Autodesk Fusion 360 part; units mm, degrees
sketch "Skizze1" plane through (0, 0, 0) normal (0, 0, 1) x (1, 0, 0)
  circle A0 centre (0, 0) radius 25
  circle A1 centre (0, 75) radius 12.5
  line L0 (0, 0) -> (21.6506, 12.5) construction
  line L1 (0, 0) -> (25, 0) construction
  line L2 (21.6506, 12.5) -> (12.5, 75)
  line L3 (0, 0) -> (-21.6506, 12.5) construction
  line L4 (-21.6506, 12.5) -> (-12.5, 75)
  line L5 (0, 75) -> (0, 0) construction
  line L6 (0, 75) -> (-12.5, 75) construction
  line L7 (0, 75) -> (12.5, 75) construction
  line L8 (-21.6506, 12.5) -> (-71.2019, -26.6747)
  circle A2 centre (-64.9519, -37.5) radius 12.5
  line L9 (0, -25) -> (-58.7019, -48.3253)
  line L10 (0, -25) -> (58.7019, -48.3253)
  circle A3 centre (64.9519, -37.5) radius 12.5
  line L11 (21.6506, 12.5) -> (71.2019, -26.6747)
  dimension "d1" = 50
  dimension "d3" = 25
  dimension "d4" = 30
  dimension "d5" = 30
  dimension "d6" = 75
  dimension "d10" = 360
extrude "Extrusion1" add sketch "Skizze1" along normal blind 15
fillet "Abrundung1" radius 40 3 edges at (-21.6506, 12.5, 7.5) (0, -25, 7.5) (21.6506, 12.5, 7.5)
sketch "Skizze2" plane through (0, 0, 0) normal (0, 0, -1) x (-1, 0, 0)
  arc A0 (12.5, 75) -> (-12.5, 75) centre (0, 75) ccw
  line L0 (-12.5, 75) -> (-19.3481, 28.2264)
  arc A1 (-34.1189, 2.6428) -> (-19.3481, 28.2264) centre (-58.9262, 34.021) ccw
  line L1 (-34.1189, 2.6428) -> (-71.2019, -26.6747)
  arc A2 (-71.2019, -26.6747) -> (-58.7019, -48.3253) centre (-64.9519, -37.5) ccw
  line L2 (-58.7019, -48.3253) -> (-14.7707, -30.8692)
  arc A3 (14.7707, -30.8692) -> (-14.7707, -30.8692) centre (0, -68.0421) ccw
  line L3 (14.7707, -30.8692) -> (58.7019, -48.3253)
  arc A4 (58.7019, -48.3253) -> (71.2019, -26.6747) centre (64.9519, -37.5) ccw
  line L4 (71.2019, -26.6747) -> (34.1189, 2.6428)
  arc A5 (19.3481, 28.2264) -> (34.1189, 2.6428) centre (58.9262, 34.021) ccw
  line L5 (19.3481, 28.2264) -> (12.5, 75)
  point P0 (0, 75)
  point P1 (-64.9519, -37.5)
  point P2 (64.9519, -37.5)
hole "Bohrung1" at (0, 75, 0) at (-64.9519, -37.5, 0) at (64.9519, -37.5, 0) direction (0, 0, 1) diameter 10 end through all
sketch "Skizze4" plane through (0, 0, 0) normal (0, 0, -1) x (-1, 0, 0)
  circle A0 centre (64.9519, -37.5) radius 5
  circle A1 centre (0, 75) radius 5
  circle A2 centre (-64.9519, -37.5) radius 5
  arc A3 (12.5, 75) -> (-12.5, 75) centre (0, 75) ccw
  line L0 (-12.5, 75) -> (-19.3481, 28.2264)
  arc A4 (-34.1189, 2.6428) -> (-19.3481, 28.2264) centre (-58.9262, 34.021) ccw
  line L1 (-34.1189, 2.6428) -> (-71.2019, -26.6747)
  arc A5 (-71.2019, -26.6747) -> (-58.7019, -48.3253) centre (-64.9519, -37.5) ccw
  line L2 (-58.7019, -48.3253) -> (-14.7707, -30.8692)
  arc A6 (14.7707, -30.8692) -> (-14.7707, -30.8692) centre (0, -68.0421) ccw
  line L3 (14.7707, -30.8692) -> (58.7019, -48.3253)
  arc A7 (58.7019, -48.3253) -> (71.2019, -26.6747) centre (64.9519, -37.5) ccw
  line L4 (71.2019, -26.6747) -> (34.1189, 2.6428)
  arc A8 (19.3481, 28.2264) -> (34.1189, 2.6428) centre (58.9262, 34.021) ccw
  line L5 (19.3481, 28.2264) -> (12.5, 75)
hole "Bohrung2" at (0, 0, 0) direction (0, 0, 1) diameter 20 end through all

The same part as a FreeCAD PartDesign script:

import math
import FreeCAD as App
import Part
import Sketcher
Q = App.Units.Quantity


def edges_at(feature, points):
    """Names of the edges that pass closest to the given points."""
    edges = feature.Shape.Edges
    near = lambda p: min(range(len(edges)), key=lambda i: edges[i].distToShape(Part.Vertex(*p))[0])
    return sorted({f"Edge{near(p) + 1}" for p in points})

doc = App.newDocument("Part")
body = doc.addObject("PartDesign::Body", "Body")

# Sketch on XY plane
sketch1 = doc.addObject("Sketcher::SketchObject", "Sketch")
body.addObject(sketch1)
sketch1.AttachmentSupport = (doc.XY_Plane, [""])
sketch1.MapMode = "FlatFace"
sketch1.addGeometry([
    Part.LineSegment(App.Vector(0, -25, 0), App.Vector(59, -48, 0)),  # 0
    Part.ArcOfCircle(Part.Circle(App.Vector(65, -38, 0), App.Vector(0, 0, 1), 12), math.radians(-120), math.radians(60)),  # 1
    Part.LineSegment(App.Vector(71, -27, 0), App.Vector(22, 12, 0)),  # 2
    Part.LineSegment(App.Vector(22, 12, 0), App.Vector(12, 75, 0)),  # 3
    Part.ArcOfCircle(Part.Circle(App.Vector(0, 75, 0), App.Vector(0, 0, 1), 12), math.radians(0), math.radians(180)),  # 4
    Part.LineSegment(App.Vector(-12, 75, 0), App.Vector(-22, 12, 0)),  # 5
    Part.LineSegment(App.Vector(-22, 12, 0), App.Vector(-71, -27, 0)),  # 6
    Part.ArcOfCircle(Part.Circle(App.Vector(-65, -38, 0), App.Vector(0, 0, 1), 12), math.radians(120), math.radians(300)),  # 7
    Part.LineSegment(App.Vector(-59, -48, 0), App.Vector(0, -25, 0)),  # 8
], False)
sketch1.addConstraint([
    Sketcher.Constraint("Coincident", 0, 2, 1, 1),
    Sketcher.Constraint("Coincident", 1, 2, 2, 1),
    Sketcher.Constraint("Coincident", 2, 2, 3, 1),
    Sketcher.Constraint("Coincident", 3, 2, 4, 1),
    Sketcher.Constraint("Coincident", 4, 2, 5, 1),
    Sketcher.Constraint("Coincident", 5, 2, 6, 1),
    Sketcher.Constraint("Coincident", 6, 2, 7, 1),
    Sketcher.Constraint("Coincident", 7, 2, 8, 1),
    Sketcher.Constraint("Coincident", 8, 2, 0, 1),
    Sketcher.Constraint("Equal", 1, 4),
    Sketcher.Constraint("Equal", 4, 7),
    Sketcher.Constraint("Symmetric", 1, 3, 7, 3, -2),
    Sketcher.Constraint("Symmetric", 3, 2, 4, 2, -2),
    Sketcher.Constraint("Symmetric", 2, 2, 5, 2, -2),
    Sketcher.Constraint("PointOnObject", 8, 2, -2),
    Sketcher.Constraint("Horizontal", 4, 3, 3, 2),
    Sketcher.Constraint("Horizontal", 1, 2, 6, 2),
    Sketcher.Constraint("Horizontal", 0, 2, 7, 2),
    Sketcher.Constraint("Equal", 0, 2),
    Sketcher.Constraint("Equal", 2, 3),
    Sketcher.Constraint("Radius", 1, Q("12.5 mm")),
    Sketcher.Constraint("DistanceY", -1, 1, 4, 3, Q("75 mm")),
    Sketcher.Constraint("DistanceY", 8, 2, -1, 1, Q("25 mm")),
    Sketcher.Constraint("DistanceY", 1, 3, 2, 2, Q("50 mm")),
    Sketcher.Constraint("DistanceY", 1, 3, -1, 1, Q("37.5 mm")),
    Sketcher.Constraint("Angle", 0, Q("-21.6705 deg")),
    Sketcher.Constraint("Angle", 2, Q("141.6705 deg")),
])
pad1 = doc.addObject("PartDesign::Pad", "Pad")
body.addObject(pad1)
pad1.Profile = sketch1
pad1.Length = 15
doc.recompute()

fillet = doc.addObject("PartDesign::Fillet", "Fillet")
body.addObject(fillet)
fillet.Base = (pad1, edges_at(pad1, [(-21.651, 12.5, 7.5), (0, -25, 7.5), (21.651, 12.5, 7.5)]))
fillet.Radius = 40

# Sketch on XY plane
sketch2 = doc.addObject("Sketcher::SketchObject", "Sketch001")
body.addObject(sketch2)
sketch2.AttachmentSupport = (doc.XY_Plane, [""])
sketch2.MapMode = "FlatFace"
sketch2.addGeometry([
    Part.Circle(App.Vector(0, 75, 0), App.Vector(0, 0, 1), 5),
    Part.Circle(App.Vector(-65, -38, 0), App.Vector(0, 0, 1), 5),
    Part.Circle(App.Vector(65, -38, 0), App.Vector(0, 0, 1), 5),
], False)
sketch2.addConstraint([
    Sketcher.Constraint("Equal", 0, 1),
    Sketcher.Constraint("Equal", 1, 2),
    Sketcher.Constraint("Symmetric", 1, 3, 2, 3, -2),
    Sketcher.Constraint("PointOnObject", 0, 3, -2),
    Sketcher.Constraint("Diameter", 0, Q("10 mm")),
    Sketcher.Constraint("DistanceY", -1, 1, 0, 3, Q("75 mm")),
    Sketcher.Constraint("DistanceY", 1, 3, -1, 1, Q("37.5 mm")),
    Sketcher.Constraint("DistanceX", 1, 3, -1, 1, Q("64.952 mm")),
])
doc.recompute()
hole = doc.addObject("PartDesign::Hole", "Hole")
body.addObject(hole)
hole.Profile = sketch2
hole.ThreadType = "None"
hole.Diameter = 10
hole.DepthType = "ThroughAll"
hole.Reversed = True

# Sketch on XY plane
sketch3 = doc.addObject("Sketcher::SketchObject", "Sketch002")
body.addObject(sketch3)
sketch3.AttachmentSupport = (doc.XY_Plane, [""])
sketch3.MapMode = "FlatFace"
sketch3.addGeometry(Part.Circle(App.Vector(0, 0, 0), App.Vector(0, 0, 1), 10), False)
sketch3.addConstraint([
    Sketcher.Constraint("Coincident", 0, 3, -1, 1),
    Sketcher.Constraint("Diameter", 0, Q("20 mm")),
])
doc.recompute()
hole2 = doc.addObject("PartDesign::Hole", "Hole001")
body.addObject(hole2)
hole2.Profile = sketch3
hole2.ThreadType = "None"
hole2.Diameter = 20
hole2.DepthType = "ThroughAll"
hole2.Reversed = True

doc.recompute()
